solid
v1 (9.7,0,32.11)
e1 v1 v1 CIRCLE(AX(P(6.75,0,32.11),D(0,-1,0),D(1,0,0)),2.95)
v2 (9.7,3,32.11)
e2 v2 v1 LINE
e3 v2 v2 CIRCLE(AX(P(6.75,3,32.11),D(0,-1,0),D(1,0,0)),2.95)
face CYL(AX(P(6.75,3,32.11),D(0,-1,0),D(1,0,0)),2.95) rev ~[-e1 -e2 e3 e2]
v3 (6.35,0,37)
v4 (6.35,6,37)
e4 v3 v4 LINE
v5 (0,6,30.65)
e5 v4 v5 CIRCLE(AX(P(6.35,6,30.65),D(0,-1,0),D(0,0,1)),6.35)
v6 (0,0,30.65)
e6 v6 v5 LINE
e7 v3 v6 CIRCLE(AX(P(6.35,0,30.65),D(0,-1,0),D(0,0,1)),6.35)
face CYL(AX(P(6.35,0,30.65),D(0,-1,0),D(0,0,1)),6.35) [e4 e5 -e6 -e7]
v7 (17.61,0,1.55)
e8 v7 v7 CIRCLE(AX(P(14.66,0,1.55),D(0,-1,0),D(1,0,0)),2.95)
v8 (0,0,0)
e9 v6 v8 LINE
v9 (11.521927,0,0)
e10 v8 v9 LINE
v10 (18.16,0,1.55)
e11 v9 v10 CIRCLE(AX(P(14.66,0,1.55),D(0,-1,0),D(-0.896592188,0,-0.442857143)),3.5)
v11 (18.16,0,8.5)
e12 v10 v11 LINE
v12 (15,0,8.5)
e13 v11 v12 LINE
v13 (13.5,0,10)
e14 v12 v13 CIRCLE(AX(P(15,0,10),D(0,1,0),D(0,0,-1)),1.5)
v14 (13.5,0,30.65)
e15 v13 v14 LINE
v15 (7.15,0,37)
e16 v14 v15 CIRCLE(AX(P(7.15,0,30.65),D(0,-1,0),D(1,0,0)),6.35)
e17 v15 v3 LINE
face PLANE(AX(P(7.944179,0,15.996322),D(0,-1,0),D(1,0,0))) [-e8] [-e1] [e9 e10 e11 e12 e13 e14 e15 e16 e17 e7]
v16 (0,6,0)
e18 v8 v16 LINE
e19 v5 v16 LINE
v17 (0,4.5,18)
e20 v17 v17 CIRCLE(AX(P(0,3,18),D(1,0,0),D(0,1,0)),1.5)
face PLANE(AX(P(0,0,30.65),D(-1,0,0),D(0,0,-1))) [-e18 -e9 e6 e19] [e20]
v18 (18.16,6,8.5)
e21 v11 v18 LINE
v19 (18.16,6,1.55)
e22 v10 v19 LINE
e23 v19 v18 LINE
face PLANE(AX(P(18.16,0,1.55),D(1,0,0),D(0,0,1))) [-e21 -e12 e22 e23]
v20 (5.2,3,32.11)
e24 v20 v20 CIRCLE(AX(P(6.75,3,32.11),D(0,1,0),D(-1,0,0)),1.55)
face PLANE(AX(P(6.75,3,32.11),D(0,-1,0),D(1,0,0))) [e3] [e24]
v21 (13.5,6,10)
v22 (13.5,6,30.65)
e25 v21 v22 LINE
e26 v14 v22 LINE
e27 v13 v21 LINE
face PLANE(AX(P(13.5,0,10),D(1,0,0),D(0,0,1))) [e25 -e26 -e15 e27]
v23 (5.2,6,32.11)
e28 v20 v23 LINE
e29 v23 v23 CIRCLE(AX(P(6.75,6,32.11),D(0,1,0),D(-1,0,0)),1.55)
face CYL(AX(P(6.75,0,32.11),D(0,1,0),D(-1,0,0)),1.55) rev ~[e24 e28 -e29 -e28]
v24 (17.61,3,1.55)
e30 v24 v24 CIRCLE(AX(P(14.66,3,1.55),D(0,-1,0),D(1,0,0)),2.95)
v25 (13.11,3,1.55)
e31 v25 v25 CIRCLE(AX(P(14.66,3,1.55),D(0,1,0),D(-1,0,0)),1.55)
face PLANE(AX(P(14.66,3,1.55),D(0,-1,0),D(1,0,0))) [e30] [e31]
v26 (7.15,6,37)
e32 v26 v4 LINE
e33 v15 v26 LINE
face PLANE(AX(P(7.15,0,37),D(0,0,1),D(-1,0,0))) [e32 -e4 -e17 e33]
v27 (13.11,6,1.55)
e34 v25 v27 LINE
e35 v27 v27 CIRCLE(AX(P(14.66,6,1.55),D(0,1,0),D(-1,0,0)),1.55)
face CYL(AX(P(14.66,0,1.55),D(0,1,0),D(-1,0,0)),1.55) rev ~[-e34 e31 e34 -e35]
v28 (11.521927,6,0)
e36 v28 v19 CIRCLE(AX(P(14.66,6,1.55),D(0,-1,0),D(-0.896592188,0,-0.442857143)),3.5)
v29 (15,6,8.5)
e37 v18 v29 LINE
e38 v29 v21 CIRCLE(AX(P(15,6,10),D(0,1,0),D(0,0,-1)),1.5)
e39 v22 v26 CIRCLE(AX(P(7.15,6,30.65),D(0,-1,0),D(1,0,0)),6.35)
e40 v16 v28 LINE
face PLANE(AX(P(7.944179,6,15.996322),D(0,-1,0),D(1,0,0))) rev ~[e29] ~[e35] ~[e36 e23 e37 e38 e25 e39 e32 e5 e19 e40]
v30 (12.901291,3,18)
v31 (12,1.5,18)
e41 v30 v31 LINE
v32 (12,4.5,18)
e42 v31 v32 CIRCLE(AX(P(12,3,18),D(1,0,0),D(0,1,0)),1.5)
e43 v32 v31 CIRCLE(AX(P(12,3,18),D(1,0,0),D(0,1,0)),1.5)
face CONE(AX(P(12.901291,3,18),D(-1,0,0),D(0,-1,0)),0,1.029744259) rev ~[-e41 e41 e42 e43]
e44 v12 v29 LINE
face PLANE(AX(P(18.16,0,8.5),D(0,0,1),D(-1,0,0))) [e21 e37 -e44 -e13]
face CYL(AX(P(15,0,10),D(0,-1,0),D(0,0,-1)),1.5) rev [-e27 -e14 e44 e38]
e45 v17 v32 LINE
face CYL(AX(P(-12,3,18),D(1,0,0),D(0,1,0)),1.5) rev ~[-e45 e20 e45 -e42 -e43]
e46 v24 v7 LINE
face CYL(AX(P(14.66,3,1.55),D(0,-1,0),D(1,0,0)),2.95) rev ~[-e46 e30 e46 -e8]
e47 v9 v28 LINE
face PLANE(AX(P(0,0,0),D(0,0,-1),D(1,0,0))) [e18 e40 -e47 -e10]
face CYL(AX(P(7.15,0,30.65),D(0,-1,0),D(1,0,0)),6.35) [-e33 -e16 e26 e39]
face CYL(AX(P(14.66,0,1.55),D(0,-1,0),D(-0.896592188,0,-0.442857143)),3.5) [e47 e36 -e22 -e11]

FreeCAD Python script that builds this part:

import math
import FreeCAD as App
import Part
import Sketcher

V = App.Vector

doc = App.newDocument("Part")
params = doc.addObject("Spreadsheet::Sheet", "Params")
for row, (alias, value) in enumerate([
    ("sketch1_radius", "3.5 mm"),
    ("sketch1_radius2", "1.5 mm"),
    ("sketch1_radius3", "6.35 mm"),
    ("sketch1_width", "0.8 mm"),
    ("sketch1_width2", "3.16 mm"),
    ("pad1_length", "6 mm"),
    ("sketch2_diameter", "3.1 mm"),
    ("hole_diameter", "3.1 mm"),
    ("hole_cbore_diameter", "5.9 mm"),
    ("hole_cbore_depth", "3 mm"),
    ("sketch3_diameter", "3.1 mm"),
    ("hole2_diameter", "3.1 mm"),
    ("hole2_cbore_diameter", "5.9 mm"),
    ("hole2_cbore_depth", "3 mm"),
    ("sketch4_diameter", "3 mm"),
    ("hole3_diameter", "3 mm"),
    ("hole3_depth", "12 mm"),
], start=1):
    params.set(f"A{row}", alias)
    params.set(f"B{row}", "=" + value)
    params.setAlias(f"B{row}", alias)

body = doc.addObject("PartDesign::Body", "Body")

sketch1 = doc.addObject("Sketcher::SketchObject", "Sketch")
body.addObject(sketch1)
sketch1.AttachmentSupport = (doc.XZ_Plane, [""])
sketch1.MapMode = "FlatFace"
sketch1.addGeometry([
    Part.ArcOfCircle(Part.Circle(V(6.3, 30.6, 0), V(0, 0, 1), 6.3), math.radians(90), math.radians(180)),
    Part.LineSegment(V(0, 30.6, 0), V(0, 0, 0)),
    Part.LineSegment(V(0, 0, 0), V(11.5, 0, 0)),
    Part.ArcOfCircle(Part.Circle(V(14.7, 1.6, 0), V(0, 0, 1), 3.5), math.radians(-154), math.radians(0)),
    Part.LineSegment(V(18.2, 1.6, 0), V(18.2, 8.5, 0)),
    Part.LineSegment(V(18.2, 8.5, 0), V(15, 8.5, 0)),
    Part.ArcOfCircle(Part.Circle(V(15, 10, 0), V(0, 0, 1), 1.5), math.radians(180), math.radians(270)),
    Part.LineSegment(V(13.5, 10, 0), V(13.5, 30.6, 0)),
    Part.ArcOfCircle(Part.Circle(V(7.2, 30.6, 0), V(0, 0, 1), 6.3), math.radians(0), math.radians(90)),
    Part.LineSegment(V(7.2, 37, 0), V(6.3, 37, 0)),
], False)
sketch1.addConstraint([
    Sketcher.Constraint("Tangent", 0, 2, 1, 1),
    Sketcher.Constraint("Coincident", 1, 2, 2, 1),
    Sketcher.Constraint("Coincident", 2, 2, 3, 1),
    Sketcher.Constraint("Tangent", 3, 2, 4, 1),
    Sketcher.Constraint("Coincident", 4, 2, 5, 1),
    Sketcher.Constraint("Tangent", 5, 2, 6, 2),
    Sketcher.Constraint("Tangent", 6, 1, 7, 1),
    Sketcher.Constraint("Tangent", 7, 2, 8, 1),
    Sketcher.Constraint("Tangent", 8, 2, 9, 1),
    Sketcher.Constraint("Tangent", 9, 2, 0, 1),
    Sketcher.Constraint("Vertical", 1),
    Sketcher.Constraint("Horizontal", 2),
    Sketcher.Constraint("Vertical", 4),
    Sketcher.Constraint("Horizontal", 5),
    Sketcher.Constraint("Vertical", 7),
    Sketcher.Constraint("Horizontal", 9),
    Sketcher.Constraint("Coincident", 1, 2, -1, 1),
    Sketcher.Constraint("Equal", 0, 8),
    Sketcher.Constraint("Radius", 3, 3.5),
    Sketcher.Constraint("Radius", 6, 1.5),
    Sketcher.Constraint("Radius", 0, 6.35),
    Sketcher.Constraint("DistanceX", 9, 2, 9, 1, 0.8),
    Sketcher.Constraint("DistanceY", -1, 1, 6, 3, 10.0),
    Sketcher.Constraint("DistanceY", -1, 1, 8, 2, 37.0),
    Sketcher.Constraint("DistanceX", 5, 2, 5, 1, 3.16),
    Sketcher.Constraint("DistanceY", 4, 1, 4, 2, 6.95),
])
sketch1.setExpression("Constraints[18]", "Params.sketch1_radius")
sketch1.setExpression("Constraints[19]", "Params.sketch1_radius2")
sketch1.setExpression("Constraints[20]", "Params.sketch1_radius3")
sketch1.setExpression("Constraints[21]", "Params.sketch1_width")
sketch1.setExpression("Constraints[24]", "Params.sketch1_width2")
pad1 = doc.addObject("PartDesign::Pad", "Pad")
body.addObject(pad1)
pad1.Profile = sketch1
pad1.setExpression("Length", "Params.pad1_length")
pad1.Reversed = True

sketch2 = doc.addObject("Sketcher::SketchObject", "Sketch001")
body.addObject(sketch2)
sketch2.AttachmentSupport = (doc.XZ_Plane, [""])
sketch2.MapMode = "FlatFace"
sketch2.addGeometry(Part.Circle(V(6.8, 32.1, 0), V(0, 0, 1), 1.6), False)
sketch2.addConstraint([
    Sketcher.Constraint("Diameter", 0, 3.1),
    Sketcher.Constraint("DistanceX", -1, 1, 0, 3, 6.75),
    Sketcher.Constraint("DistanceY", -1, 1, 0, 3, 32.11),
])
sketch2.setExpression("Constraints[0]", "Params.sketch2_diameter")
doc.recompute()
hole = doc.addObject("PartDesign::Hole", "Hole")
body.addObject(hole)
hole.Profile = sketch2
hole.ThreadType = "None"
hole.setExpression("Diameter", "Params.hole_diameter")
hole.DepthType = "ThroughAll"
hole.HoleCutType = "Counterbore"
hole.setExpression("HoleCutDiameter", "Params.hole_cbore_diameter")
hole.setExpression("HoleCutDepth", "Params.hole_cbore_depth")

sketch3 = doc.addObject("Sketcher::SketchObject", "Sketch002")
body.addObject(sketch3)
sketch3.AttachmentSupport = (doc.XZ_Plane, [""])
sketch3.MapMode = "FlatFace"
sketch3.addGeometry(Part.Circle(V(14.7, 1.6, 0), V(0, 0, 1), 1.6), False)
sketch3.addConstraint([
    Sketcher.Constraint("Diameter", 0, 3.1),
    Sketcher.Constraint("DistanceX", -1, 1, 0, 3, 14.66),
    Sketcher.Constraint("DistanceY", -1, 1, 0, 3, 1.55),
])
sketch3.setExpression("Constraints[0]", "Params.sketch3_diameter")
doc.recompute()
hole2 = doc.addObject("PartDesign::Hole", "Hole001")
body.addObject(hole2)
hole2.Profile = sketch3
hole2.ThreadType = "None"
hole2.setExpression("Diameter", "Params.hole2_diameter")
hole2.DepthType = "ThroughAll"
hole2.HoleCutType = "Counterbore"
hole2.setExpression("HoleCutDiameter", "Params.hole2_cbore_diameter")
hole2.setExpression("HoleCutDepth", "Params.hole2_cbore_depth")

sketch4 = doc.addObject("Sketcher::SketchObject", "Sketch003")
body.addObject(sketch4)
sketch4.AttachmentSupport = (doc.YZ_Plane, [""])
sketch4.MapMode = "FlatFace"
sketch4.addGeometry(Part.Circle(V(3, 18, 0), V(0, 0, 1), 1.5), False)
sketch4.addConstraint([
    Sketcher.Constraint("Diameter", 0, 3.0),
    Sketcher.Constraint("DistanceX", -1, 1, 0, 3, 3.0),
    Sketcher.Constraint("DistanceY", -1, 1, 0, 3, 18.0),
])
sketch4.setExpression("Constraints[0]", "Params.sketch4_diameter")
doc.recompute()
hole3 = doc.addObject("PartDesign::Hole", "Hole002")
body.addObject(hole3)
hole3.Profile = sketch4
hole3.ThreadType = "None"
hole3.setExpression("Diameter", "Params.hole3_diameter")
hole3.DepthType = "Dimension"
hole3.setExpression("Depth", "Params.hole3_depth")
hole3.DrillPoint = "Angled"
hole3.DrillPointAngle = 118
hole3.Reversed = True

doc.recompute()
